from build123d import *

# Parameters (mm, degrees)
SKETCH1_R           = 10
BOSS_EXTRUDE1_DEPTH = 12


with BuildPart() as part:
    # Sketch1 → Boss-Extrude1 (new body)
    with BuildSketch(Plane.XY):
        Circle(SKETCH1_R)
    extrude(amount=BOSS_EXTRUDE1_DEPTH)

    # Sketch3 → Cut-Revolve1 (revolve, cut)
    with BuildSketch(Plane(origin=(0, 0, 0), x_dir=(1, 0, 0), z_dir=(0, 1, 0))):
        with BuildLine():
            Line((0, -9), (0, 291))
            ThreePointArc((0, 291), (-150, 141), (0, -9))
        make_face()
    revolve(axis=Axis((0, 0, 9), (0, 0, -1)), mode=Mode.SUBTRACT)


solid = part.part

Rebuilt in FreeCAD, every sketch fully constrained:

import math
import FreeCAD as App
import Part
import Sketcher

V = App.Vector

doc = App.newDocument("Part")
body = doc.addObject("PartDesign::Body", "Body")

# Sketch on XY plane
sketch1 = body.newObject("Sketcher::SketchObject", "Sketch")
sketch1.AttachmentSupport = (doc.getObject("XY_Plane"), [""])
sketch1.MapMode = "FlatFace"
sketch1.addGeometry(Part.Circle(V(0, 0, 0), V(0, 0, 1), 10), False)
sketch1.addConstraint(Sketcher.Constraint("Coincident", 0, 3, -1, 1))
sketch1.addConstraint(Sketcher.Constraint("Diameter", 0, 20.0))
pad1 = body.newObject("PartDesign::Pad", "Pad")
pad1.Profile = sketch1
pad1.Length = 12

# Sketch on XZ plane
sketch2 = body.newObject("Sketcher::SketchObject", "Sketch001")
sketch2.AttachmentSupport = (doc.getObject("XZ_Plane"), [""])
sketch2.MapMode = "FlatFace"
sketch2.addGeometry(Part.LineSegment(V(0, 9, 0), V(0, -291, 0)), False)
sketch2.addGeometry(Part.ArcOfCircle(Part.Circle(V(0, -141, 0), V(0, 0, 1), 150), math.radians(90), math.radians(270)), False)
sketch2.addConstraint(Sketcher.Constraint("Coincident", 0, 1, 1, 1))
sketch2.addConstraint(Sketcher.Constraint("Coincident", 1, 2, 0, 2))
sketch2.addConstraint(Sketcher.Constraint("Vertical", 0))
sketch2.addConstraint(Sketcher.Constraint("PointOnObject", 1, 3, -2))
sketch2.addConstraint(Sketcher.Constraint("PointOnObject", 0, 1, -2))
sketch2.addConstraint(Sketcher.Constraint("Radius", 1, 150.0))
sketch2.addConstraint(Sketcher.Constraint("DistanceY", 1, 3, -1, 1, 141.0))
groove = body.newObject("PartDesign::Groove", "Groove")
groove.Profile = sketch2
groove.ReferenceAxis = (sketch2, ["V_Axis"])
groove.Angle = 360

doc.recompute()
